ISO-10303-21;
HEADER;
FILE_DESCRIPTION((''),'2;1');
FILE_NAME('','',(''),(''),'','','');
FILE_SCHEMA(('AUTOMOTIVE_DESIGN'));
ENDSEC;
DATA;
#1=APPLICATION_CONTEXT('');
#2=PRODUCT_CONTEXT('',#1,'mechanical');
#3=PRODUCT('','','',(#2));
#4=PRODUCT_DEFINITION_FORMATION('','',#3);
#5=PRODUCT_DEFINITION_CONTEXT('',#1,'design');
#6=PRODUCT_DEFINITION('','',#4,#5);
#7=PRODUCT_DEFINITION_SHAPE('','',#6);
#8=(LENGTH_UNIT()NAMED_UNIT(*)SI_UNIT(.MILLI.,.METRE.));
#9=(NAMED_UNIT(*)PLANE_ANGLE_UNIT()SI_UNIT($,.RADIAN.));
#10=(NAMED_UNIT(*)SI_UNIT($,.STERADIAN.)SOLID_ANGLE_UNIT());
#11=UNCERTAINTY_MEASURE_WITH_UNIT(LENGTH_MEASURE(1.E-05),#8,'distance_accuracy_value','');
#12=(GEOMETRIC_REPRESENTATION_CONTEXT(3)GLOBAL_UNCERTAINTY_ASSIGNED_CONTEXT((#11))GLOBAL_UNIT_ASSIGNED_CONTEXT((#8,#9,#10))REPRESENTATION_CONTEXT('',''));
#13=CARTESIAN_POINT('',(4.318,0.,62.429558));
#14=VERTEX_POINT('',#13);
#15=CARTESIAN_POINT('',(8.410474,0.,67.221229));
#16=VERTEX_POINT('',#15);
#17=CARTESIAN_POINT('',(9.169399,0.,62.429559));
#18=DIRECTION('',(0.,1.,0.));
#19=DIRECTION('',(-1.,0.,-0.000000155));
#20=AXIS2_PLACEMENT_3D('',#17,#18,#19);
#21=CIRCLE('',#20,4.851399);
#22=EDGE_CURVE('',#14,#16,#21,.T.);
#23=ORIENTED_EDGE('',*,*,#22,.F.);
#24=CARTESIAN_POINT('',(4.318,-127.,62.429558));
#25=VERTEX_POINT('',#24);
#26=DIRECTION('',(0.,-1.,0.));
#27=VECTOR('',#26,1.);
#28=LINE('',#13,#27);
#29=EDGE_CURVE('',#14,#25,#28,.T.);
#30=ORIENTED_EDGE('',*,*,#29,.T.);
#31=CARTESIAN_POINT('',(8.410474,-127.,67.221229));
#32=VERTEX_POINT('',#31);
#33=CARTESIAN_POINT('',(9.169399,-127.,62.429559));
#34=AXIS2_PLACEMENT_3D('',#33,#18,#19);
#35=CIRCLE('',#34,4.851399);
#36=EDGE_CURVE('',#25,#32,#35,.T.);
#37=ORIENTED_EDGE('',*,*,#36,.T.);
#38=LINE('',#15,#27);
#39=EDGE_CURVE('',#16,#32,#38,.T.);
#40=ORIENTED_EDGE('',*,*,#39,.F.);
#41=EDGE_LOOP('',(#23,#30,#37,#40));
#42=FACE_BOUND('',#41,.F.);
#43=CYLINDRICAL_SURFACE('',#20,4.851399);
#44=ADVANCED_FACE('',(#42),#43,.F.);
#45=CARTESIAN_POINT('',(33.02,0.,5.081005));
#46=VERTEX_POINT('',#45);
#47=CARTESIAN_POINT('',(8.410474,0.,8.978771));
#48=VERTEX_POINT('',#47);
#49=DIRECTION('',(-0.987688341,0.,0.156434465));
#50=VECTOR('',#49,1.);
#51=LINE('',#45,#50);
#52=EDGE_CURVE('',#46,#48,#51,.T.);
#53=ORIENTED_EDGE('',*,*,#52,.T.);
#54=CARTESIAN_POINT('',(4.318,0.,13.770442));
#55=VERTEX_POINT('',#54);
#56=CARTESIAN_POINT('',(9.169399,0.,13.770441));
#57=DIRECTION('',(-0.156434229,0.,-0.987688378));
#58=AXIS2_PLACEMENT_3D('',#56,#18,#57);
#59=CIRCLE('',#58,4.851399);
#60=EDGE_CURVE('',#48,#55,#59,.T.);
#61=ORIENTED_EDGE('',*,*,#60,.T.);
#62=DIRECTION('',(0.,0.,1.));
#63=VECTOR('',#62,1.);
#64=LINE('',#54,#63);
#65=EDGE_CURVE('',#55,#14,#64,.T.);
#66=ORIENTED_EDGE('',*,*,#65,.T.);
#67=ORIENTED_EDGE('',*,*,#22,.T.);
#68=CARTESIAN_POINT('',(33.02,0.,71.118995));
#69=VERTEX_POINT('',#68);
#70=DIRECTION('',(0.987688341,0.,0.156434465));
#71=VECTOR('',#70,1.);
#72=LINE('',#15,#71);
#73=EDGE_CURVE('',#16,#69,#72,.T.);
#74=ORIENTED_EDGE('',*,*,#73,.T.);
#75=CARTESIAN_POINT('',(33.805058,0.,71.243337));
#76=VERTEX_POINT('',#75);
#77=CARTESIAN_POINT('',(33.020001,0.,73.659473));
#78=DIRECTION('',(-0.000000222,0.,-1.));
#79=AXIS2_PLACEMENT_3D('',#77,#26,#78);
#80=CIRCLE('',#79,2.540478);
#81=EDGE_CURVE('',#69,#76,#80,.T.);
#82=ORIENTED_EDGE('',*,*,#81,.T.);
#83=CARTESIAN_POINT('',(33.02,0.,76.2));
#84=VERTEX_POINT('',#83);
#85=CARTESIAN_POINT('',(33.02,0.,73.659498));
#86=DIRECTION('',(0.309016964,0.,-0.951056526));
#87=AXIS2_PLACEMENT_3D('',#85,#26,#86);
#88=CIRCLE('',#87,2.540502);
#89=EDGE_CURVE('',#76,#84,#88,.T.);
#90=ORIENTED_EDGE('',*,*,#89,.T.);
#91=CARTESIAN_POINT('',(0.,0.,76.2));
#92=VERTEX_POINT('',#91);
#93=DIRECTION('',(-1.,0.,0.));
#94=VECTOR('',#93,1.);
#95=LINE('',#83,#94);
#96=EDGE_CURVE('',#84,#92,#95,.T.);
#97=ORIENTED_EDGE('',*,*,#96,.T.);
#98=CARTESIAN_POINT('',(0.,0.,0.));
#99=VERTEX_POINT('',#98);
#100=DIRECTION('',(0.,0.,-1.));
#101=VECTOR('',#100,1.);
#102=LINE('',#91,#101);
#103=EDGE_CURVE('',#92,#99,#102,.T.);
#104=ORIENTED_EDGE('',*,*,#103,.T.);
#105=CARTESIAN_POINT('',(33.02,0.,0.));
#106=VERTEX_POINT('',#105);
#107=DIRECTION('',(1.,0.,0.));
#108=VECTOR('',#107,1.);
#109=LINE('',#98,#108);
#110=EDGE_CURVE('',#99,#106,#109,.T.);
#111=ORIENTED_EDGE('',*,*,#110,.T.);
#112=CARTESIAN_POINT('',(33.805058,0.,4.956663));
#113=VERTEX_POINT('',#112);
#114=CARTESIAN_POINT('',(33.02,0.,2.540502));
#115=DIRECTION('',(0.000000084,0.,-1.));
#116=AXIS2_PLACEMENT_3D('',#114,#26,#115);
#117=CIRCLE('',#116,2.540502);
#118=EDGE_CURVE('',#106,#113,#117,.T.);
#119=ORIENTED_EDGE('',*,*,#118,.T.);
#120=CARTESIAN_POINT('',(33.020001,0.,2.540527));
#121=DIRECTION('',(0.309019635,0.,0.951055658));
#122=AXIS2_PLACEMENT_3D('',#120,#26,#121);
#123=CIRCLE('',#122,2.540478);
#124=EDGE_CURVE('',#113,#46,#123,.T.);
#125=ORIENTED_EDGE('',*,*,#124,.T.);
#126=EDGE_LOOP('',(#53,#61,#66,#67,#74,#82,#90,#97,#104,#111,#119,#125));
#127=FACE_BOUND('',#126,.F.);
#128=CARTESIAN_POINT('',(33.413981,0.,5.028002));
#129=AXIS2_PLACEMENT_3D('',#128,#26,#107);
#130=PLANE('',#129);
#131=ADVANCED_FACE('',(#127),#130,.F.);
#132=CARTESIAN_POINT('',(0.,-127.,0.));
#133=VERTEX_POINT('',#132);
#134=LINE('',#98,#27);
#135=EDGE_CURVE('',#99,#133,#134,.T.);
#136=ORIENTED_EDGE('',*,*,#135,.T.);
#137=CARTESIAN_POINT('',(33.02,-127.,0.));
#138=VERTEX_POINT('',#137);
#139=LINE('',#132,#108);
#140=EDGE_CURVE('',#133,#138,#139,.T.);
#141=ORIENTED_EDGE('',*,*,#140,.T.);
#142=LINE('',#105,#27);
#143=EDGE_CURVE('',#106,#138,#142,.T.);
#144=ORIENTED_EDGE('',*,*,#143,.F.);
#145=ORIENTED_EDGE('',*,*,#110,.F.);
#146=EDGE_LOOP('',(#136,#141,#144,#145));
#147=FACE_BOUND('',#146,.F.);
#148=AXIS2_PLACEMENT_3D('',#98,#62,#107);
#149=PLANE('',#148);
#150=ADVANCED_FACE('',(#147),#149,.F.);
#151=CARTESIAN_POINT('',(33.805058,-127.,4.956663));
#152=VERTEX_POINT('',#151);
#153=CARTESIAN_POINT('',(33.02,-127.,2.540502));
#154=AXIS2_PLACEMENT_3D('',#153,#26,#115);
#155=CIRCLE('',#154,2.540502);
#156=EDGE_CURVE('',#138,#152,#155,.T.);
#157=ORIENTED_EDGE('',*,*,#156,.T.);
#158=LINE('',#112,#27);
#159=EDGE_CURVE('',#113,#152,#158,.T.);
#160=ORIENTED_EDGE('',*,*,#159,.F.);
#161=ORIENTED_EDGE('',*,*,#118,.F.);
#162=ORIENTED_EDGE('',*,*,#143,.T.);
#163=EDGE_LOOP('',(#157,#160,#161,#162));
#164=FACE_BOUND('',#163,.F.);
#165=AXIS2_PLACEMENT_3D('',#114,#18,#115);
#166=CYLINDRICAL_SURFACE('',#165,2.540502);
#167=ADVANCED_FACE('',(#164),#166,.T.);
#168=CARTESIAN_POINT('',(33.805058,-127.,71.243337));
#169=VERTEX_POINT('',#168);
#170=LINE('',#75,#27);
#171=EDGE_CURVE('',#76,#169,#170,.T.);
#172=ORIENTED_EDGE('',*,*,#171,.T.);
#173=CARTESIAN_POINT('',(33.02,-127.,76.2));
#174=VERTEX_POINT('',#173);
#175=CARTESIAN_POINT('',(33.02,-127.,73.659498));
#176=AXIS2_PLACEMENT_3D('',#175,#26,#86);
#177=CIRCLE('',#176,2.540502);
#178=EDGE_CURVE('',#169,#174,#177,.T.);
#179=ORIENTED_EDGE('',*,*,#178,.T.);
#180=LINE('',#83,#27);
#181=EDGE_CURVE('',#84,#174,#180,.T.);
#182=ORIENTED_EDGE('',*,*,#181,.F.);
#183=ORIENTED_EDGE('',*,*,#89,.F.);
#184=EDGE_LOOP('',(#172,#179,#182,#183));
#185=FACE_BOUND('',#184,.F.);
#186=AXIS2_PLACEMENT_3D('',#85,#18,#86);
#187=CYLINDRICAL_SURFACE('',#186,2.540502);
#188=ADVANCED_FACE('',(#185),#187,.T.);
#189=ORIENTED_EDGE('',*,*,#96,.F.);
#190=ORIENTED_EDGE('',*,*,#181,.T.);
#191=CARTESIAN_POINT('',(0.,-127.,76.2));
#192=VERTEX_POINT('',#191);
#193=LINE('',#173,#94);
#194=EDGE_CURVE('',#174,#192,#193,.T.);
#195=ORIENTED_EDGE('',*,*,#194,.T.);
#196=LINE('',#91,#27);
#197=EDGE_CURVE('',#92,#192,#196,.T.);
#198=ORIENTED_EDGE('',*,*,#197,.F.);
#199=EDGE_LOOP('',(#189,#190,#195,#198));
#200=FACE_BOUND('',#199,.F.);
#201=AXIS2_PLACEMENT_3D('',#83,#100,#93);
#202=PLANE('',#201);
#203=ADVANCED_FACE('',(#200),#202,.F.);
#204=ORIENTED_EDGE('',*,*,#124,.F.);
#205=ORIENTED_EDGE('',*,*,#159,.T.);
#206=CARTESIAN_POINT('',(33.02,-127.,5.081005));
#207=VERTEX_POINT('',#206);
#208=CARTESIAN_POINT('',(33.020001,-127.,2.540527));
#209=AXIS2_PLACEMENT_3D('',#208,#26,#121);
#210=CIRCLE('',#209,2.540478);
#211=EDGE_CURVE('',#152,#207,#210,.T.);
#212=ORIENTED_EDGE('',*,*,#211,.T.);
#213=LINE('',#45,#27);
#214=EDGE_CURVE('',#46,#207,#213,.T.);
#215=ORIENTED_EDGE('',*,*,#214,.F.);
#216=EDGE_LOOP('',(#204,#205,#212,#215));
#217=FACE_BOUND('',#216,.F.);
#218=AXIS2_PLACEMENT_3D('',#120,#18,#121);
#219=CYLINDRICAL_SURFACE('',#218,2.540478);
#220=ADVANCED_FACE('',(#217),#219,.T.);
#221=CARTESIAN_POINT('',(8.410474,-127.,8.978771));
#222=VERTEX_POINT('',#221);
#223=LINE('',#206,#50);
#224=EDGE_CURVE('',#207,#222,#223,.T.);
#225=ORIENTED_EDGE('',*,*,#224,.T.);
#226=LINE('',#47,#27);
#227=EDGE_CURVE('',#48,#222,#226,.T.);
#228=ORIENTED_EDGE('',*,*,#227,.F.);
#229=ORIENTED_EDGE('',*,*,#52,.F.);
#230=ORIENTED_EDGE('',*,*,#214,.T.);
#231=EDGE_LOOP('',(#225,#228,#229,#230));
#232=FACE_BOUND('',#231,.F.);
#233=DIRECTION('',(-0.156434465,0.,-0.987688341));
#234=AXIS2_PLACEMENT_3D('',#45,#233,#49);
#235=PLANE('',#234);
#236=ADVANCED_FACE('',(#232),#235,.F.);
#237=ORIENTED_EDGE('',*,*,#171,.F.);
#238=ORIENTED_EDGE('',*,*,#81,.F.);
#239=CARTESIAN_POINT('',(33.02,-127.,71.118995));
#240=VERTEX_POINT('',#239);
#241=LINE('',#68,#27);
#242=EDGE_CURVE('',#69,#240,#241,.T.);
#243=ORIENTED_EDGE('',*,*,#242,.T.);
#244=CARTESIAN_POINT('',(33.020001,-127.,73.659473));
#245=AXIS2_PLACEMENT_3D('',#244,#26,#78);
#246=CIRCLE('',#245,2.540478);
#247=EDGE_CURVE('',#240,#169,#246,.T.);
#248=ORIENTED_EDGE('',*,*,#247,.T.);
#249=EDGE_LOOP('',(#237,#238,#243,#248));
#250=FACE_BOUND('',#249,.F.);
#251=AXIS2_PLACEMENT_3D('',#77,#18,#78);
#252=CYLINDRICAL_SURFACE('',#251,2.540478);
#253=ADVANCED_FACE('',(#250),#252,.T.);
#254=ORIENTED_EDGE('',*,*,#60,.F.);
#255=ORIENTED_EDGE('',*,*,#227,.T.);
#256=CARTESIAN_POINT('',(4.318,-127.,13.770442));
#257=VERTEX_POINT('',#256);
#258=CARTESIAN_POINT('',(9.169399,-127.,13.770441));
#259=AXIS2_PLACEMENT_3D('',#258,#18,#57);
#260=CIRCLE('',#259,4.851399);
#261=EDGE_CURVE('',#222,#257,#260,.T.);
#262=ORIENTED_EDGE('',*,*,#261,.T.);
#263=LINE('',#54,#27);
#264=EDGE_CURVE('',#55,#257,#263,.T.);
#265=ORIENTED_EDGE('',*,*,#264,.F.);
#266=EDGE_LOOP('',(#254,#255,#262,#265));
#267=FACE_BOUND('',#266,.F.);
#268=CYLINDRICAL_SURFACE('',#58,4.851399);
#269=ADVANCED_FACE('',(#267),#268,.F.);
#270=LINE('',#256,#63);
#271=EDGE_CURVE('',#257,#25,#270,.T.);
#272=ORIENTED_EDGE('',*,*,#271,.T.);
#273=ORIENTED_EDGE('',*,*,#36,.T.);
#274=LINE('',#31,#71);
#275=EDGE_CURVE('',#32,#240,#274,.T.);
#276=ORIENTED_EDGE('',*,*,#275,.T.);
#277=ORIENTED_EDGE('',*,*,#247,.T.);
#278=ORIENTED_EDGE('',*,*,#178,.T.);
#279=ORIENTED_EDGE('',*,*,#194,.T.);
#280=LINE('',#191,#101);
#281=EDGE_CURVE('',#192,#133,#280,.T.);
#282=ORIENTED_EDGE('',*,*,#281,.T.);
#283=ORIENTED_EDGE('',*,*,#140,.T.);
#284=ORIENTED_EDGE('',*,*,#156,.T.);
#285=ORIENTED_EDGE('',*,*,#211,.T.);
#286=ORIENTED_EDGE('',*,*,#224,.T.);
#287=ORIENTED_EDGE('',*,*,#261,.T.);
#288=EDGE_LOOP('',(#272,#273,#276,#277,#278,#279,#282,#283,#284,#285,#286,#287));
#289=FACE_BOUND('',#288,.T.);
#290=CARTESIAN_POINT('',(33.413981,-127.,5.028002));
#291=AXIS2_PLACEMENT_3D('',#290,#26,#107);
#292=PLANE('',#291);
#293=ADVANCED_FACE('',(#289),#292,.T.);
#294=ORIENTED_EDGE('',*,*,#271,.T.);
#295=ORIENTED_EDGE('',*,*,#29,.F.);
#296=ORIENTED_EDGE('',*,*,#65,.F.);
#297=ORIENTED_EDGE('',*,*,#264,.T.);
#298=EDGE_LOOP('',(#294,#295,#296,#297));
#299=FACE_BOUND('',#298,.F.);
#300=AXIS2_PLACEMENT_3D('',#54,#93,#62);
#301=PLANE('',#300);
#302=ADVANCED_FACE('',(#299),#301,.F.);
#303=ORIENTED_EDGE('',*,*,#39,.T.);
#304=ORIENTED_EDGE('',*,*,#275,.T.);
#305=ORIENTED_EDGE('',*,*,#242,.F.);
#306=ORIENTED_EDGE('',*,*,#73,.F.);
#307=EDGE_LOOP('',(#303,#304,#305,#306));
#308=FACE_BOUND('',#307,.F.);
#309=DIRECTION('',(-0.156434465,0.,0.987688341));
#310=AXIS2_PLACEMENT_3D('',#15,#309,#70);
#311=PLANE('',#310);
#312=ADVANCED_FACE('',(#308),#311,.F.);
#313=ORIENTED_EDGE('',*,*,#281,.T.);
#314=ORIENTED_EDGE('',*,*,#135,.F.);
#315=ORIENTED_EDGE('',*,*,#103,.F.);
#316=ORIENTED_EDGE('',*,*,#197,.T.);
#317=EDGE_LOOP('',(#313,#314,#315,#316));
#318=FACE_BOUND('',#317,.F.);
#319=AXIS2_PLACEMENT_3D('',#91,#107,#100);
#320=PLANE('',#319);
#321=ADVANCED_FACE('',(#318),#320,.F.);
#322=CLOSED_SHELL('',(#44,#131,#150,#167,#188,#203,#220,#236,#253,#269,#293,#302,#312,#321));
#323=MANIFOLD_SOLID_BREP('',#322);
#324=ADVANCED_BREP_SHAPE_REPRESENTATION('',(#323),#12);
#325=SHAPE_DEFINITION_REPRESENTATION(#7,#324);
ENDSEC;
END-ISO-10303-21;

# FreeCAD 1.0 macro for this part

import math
import FreeCAD as App
import Part
import Sketcher
Q = App.Units.Quantity

doc = App.newDocument("Part")
body = doc.addObject("PartDesign::Body", "Body")

sketch1 = body.newObject("Sketcher::SketchObject", "Sketch")
sketch1.AttachmentSupport = (doc.getObject("XZ_Plane"), [""])
sketch1.MapMode = "FlatFace"
sketch1.addGeometry(Part.ArcOfCircle(Part.Circle(App.Vector(33, 2.5, 0), App.Vector(0, 0, 1), 2.5), math.radians(72), math.radians(90)), False)
sketch1.addGeometry(Part.LineSegment(App.Vector(33, 5.1, 0), App.Vector(8.4, 9, 0)), False)
sketch1.addGeometry(Part.ArcOfCircle(Part.Circle(App.Vector(9.2, 13.8, 0), App.Vector(0, 0, 1), 4.9), math.radians(180), math.radians(261)), False)
sketch1.addGeometry(Part.LineSegment(App.Vector(4.3, 13.8, 0), App.Vector(4.3, 62.4, 0)), False)
sketch1.addGeometry(Part.ArcOfCircle(Part.Circle(App.Vector(9.2, 62.4, 0), App.Vector(0, 0, 1), 4.9), math.radians(99), math.radians(180)), False)
sketch1.addGeometry(Part.LineSegment(App.Vector(8.4, 67.2, 0), App.Vector(33, 71.1, 0)), False)
sketch1.addGeometry(Part.ArcOfCircle(Part.Circle(App.Vector(33, 73.7, 0), App.Vector(0, 0, 1), 2.5), math.radians(-90), math.radians(-72)), False)
sketch1.addGeometry(Part.ArcOfCircle(Part.Circle(App.Vector(33, 73.7, 0), App.Vector(0, 0, 1), 2.5), math.radians(-72), math.radians(90)), False)
sketch1.addGeometry(Part.LineSegment(App.Vector(33, 76.2, 0), App.Vector(0, 76.2, 0)), False)
sketch1.addGeometry(Part.LineSegment(App.Vector(0, 76.2, 0), App.Vector(0, 0, 0)), False)
sketch1.addGeometry(Part.LineSegment(App.Vector(0, 0, 0), App.Vector(33, 0, 0)), False)
sketch1.addGeometry(Part.ArcOfCircle(Part.Circle(App.Vector(33, 2.5, 0), App.Vector(0, 0, 1), 2.5), math.radians(-90), math.radians(72)), False)
sketch1.addConstraint(Sketcher.Constraint("Coincident", 0, 2, 1, 1))
sketch1.addConstraint(Sketcher.Constraint("Tangent", 1, 2, 2, 2))
sketch1.addConstraint(Sketcher.Constraint("Tangent", 2, 1, 3, 1))
sketch1.addConstraint(Sketcher.Constraint("Tangent", 3, 2, 4, 2))
sketch1.addConstraint(Sketcher.Constraint("Tangent", 4, 1, 5, 1))
sketch1.addConstraint(Sketcher.Constraint("Coincident", 5, 2, 6, 1))
sketch1.addConstraint(Sketcher.Constraint("Coincident", 6, 2, 7, 1))
sketch1.addConstraint(Sketcher.Constraint("Tangent", 7, 2, 8, 1))
sketch1.addConstraint(Sketcher.Constraint("Coincident", 8, 2, 9, 1))
sketch1.addConstraint(Sketcher.Constraint("Coincident", 9, 2, 10, 1))
sketch1.addConstraint(Sketcher.Constraint("Tangent", 10, 2, 11, 1))
sketch1.addConstraint(Sketcher.Constraint("Coincident", 11, 2, 0, 1))
sketch1.addConstraint(Sketcher.Constraint("Vertical", 3))
sketch1.addConstraint(Sketcher.Constraint("Horizontal", 8))
sketch1.addConstraint(Sketcher.Constraint("Vertical", 9))
sketch1.addConstraint(Sketcher.Constraint("Horizontal", 10))
sketch1.addConstraint(Sketcher.Constraint("Coincident", 9, 2, -1, 1))
sketch1.addConstraint(Sketcher.Constraint("Equal", 2, 4))
sketch1.addConstraint(Sketcher.Constraint("Equal", 0, 6))
sketch1.addConstraint(Sketcher.Constraint("Equal", 7, 11))
sketch1.addConstraint(Sketcher.Constraint("Vertical", 0, 3, 6, 3))
sketch1.addConstraint(Sketcher.Constraint("Vertical", 6, 3, 7, 3))
sketch1.addConstraint(Sketcher.Constraint("Vertical", 7, 3, 11, 3))
sketch1.addConstraint(Sketcher.Constraint("Vertical", 11, 3, 0, 2))
sketch1.addConstraint(Sketcher.Constraint("Vertical", 1, 2, 4, 1))
sketch1.addConstraint(Sketcher.Constraint("Vertical", 0, 2, 5, 2))
sketch1.addConstraint(Sketcher.Constraint("Vertical", 6, 2, 11, 2))
sketch1.addConstraint(Sketcher.Constraint("DistanceY", 9, 2, 9, 1, Q("3 in")))
sketch1.addConstraint(Sketcher.Constraint("DistanceX", 8, 2, 8, 1, Q("1.3 in")))
sketch1.addConstraint(Sketcher.Constraint("Angle", 1, Q("171 deg")))
sketch1.addConstraint(Sketcher.Constraint("Radius", 2, Q("0.191 in")))
sketch1.addConstraint(Sketcher.Constraint("DistanceX", -1, 1, 2, 1, Q("0.17 in")))
sketch1.addConstraint(Sketcher.Constraint("Radius", 7, 2.540502))
sketch1.addConstraint(Sketcher.Constraint("Radius", 0, 2.540478))
sketch1.addConstraint(Sketcher.Constraint("DistanceX", -1, 1, 6, 2, 33.805058))
pad1 = body.newObject("PartDesign::Pad", "Pad")
pad1.Profile = sketch1
pad1.Length = Q("5 in")

doc.recompute()
